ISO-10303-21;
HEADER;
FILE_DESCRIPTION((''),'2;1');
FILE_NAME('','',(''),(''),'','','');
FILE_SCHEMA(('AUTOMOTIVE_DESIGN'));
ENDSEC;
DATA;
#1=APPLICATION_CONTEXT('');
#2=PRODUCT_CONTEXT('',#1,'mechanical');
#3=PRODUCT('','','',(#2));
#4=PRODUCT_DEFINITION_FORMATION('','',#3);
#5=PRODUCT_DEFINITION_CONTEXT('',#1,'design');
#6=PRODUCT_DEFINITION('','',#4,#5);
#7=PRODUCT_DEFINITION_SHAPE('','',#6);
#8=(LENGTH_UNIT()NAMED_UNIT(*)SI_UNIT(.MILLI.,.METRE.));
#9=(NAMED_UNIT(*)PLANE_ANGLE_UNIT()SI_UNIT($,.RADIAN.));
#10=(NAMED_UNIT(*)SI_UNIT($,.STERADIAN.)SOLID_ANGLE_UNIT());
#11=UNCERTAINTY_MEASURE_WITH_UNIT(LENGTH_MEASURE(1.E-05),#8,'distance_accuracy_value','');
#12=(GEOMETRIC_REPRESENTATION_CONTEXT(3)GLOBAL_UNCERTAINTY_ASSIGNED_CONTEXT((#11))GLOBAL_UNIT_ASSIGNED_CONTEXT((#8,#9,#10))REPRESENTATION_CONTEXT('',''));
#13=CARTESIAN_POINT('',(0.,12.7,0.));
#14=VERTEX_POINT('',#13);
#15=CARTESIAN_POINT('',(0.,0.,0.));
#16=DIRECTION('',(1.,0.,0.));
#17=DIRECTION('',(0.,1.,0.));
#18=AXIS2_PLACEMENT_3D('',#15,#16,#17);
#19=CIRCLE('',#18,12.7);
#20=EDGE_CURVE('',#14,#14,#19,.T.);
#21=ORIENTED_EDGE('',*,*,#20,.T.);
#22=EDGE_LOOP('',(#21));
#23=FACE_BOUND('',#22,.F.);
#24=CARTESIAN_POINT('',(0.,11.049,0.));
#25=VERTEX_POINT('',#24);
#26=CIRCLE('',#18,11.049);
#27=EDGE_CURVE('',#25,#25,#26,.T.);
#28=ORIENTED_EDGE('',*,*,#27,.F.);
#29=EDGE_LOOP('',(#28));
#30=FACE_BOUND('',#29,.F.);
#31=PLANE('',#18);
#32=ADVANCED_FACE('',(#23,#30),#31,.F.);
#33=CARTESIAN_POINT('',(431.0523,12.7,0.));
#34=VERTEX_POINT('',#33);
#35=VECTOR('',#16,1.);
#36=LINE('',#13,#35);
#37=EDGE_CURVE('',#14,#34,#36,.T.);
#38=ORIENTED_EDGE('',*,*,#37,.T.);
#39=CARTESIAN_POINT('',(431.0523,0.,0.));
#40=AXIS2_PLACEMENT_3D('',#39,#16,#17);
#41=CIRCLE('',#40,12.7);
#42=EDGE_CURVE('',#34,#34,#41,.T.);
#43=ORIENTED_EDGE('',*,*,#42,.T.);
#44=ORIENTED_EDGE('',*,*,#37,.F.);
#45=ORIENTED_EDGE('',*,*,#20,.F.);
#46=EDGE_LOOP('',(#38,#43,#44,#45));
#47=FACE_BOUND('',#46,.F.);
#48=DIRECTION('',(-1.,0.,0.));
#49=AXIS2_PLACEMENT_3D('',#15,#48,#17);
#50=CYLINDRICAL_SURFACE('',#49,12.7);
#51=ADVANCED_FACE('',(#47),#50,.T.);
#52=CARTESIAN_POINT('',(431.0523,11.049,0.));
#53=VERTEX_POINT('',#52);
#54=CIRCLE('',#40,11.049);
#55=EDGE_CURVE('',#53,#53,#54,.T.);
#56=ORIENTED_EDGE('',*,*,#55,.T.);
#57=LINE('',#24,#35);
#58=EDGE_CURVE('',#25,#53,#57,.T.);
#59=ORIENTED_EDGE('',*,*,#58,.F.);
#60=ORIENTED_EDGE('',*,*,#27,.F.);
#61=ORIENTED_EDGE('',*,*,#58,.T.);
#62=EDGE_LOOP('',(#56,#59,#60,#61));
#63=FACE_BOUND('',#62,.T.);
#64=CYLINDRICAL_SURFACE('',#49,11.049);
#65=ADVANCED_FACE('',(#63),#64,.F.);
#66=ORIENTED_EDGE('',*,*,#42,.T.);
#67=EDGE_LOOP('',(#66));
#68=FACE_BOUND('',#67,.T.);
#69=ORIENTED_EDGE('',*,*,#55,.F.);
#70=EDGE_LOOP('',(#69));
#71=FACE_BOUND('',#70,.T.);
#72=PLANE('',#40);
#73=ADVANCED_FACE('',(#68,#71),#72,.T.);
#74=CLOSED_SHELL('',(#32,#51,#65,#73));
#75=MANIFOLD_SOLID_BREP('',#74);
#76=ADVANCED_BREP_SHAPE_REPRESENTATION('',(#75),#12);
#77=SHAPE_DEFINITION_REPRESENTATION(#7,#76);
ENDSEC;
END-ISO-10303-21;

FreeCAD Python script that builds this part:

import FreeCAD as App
import Part
import Sketcher
Q = App.Units.Quantity

doc = App.newDocument("Part")
body = doc.addObject("PartDesign::Body", "Body")

# Sketch on YZ plane
sketch1 = doc.addObject("Sketcher::SketchObject", "Sketch")
body.addObject(sketch1)
sketch1.AttachmentSupport = (doc.YZ_Plane, [""])
sketch1.MapMode = "FlatFace"
sketch1.addGeometry([
    Part.Circle(App.Vector(0, 0, 0), App.Vector(0, 0, 1), 12.7),
    Part.Circle(App.Vector(0, 0, 0), App.Vector(0, 0, 1), 11.049),
], False)
sketch1.addConstraint([
    Sketcher.Constraint("Coincident", 0, 3, -1, 1),
    Sketcher.Constraint("Coincident", 1, 3, -1, 1),
    Sketcher.Constraint("Diameter", 0, Q("1 in")),
    Sketcher.Constraint("Diameter", 1, Q("0.87 in")),
])
pad1 = doc.addObject("PartDesign::Pad", "Pad")
body.addObject(pad1)
pad1.Profile = sketch1
pad1.Length = 431.0523

doc.recompute()
